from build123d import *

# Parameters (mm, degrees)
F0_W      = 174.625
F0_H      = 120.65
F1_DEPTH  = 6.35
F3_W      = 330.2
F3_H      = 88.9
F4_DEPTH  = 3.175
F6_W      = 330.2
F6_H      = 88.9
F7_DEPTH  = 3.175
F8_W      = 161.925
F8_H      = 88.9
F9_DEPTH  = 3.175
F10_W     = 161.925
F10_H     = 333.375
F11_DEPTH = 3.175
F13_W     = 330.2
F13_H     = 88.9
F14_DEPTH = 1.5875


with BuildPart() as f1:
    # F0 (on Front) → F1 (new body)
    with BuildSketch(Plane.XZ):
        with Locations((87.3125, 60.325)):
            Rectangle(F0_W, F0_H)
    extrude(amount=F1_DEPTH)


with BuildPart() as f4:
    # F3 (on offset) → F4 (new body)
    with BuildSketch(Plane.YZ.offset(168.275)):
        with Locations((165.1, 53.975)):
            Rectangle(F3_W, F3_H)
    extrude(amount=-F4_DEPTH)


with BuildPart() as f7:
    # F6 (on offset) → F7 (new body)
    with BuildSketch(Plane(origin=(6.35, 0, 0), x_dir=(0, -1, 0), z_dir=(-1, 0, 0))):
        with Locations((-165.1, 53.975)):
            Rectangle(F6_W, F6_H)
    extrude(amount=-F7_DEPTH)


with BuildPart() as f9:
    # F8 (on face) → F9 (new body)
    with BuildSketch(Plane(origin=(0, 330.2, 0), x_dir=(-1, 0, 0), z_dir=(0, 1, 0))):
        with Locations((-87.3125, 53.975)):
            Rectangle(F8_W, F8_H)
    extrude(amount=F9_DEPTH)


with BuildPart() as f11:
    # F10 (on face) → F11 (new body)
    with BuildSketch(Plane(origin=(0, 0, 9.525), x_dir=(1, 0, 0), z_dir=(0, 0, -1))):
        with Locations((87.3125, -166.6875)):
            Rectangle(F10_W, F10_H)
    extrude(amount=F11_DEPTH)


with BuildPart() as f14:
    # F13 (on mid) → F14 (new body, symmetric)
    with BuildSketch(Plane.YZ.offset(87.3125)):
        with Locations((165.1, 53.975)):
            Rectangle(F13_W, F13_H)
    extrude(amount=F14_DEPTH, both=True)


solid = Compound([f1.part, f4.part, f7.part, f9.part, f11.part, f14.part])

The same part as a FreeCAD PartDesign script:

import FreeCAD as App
import Part
import Sketcher
Q = App.Units.Quantity

doc = App.newDocument("Part")
body = doc.addObject("PartDesign::Body", "Body")

sketch1 = doc.addObject("Sketcher::SketchObject", "Sketch")
body.addObject(sketch1)
sketch1.AttachmentSupport = (doc.XZ_Plane, [""])
sketch1.MapMode = "FlatFace"
sketch1.addGeometry([
    Part.LineSegment(App.Vector(0, 121, 0), App.Vector(0, 0, 0)),
    Part.LineSegment(App.Vector(0, 0, 0), App.Vector(175, 0, 0)),
    Part.LineSegment(App.Vector(175, 0, 0), App.Vector(175, 121, 0)),
    Part.LineSegment(App.Vector(175, 121, 0), App.Vector(0, 121, 0)),
], False)
sketch1.addConstraint([
    Sketcher.Constraint("Coincident", 0, 2, 1, 1),
    Sketcher.Constraint("Coincident", 1, 2, 2, 1),
    Sketcher.Constraint("Coincident", 2, 2, 3, 1),
    Sketcher.Constraint("Coincident", 3, 2, 0, 1),
    Sketcher.Constraint("Vertical", 0),
    Sketcher.Constraint("Horizontal", 1),
    Sketcher.Constraint("Vertical", 2),
    Sketcher.Constraint("Horizontal", 3),
    Sketcher.Constraint("Coincident", 0, 2, -1, 1),
    Sketcher.Constraint("DistanceY", 0, 2, 0, 1, Q("4.75 in")),
    Sketcher.Constraint("DistanceX", 1, 1, 1, 2, Q("6.875 in")),
])
pad1 = doc.addObject("PartDesign::Pad", "Pad")
body.addObject(pad1)
pad1.Profile = sketch1
pad1.Length = Q("0.25 in")
body2 = doc.addObject("PartDesign::Body", "Body001")

sketch2 = doc.addObject("Sketcher::SketchObject", "Sketch001")
body2.addObject(sketch2)
sketch2.AttachmentSupport = (doc.getObject("YZ_Plane001"), [""])
sketch2.MapMode = "FlatFace"
sketch2.AttachmentOffset = App.Placement(App.Vector(0, 0, 6.625 * 25.4), App.Rotation())
sketch2.addGeometry([
    Part.LineSegment(App.Vector(0, 98, 0), App.Vector(0, 10, 0)),
    Part.LineSegment(App.Vector(0, 10, 0), App.Vector(330, 10, 0)),
    Part.LineSegment(App.Vector(330, 10, 0), App.Vector(330, 98, 0)),
    Part.LineSegment(App.Vector(330, 98, 0), App.Vector(0, 98, 0)),
], False)
sketch2.addConstraint([
    Sketcher.Constraint("Coincident", 0, 2, 1, 1),
    Sketcher.Constraint("Coincident", 1, 2, 2, 1),
    Sketcher.Constraint("Coincident", 2, 2, 3, 1),
    Sketcher.Constraint("Coincident", 3, 2, 0, 1),
    Sketcher.Constraint("Vertical", 0),
    Sketcher.Constraint("Horizontal", 1),
    Sketcher.Constraint("Vertical", 2),
    Sketcher.Constraint("Horizontal", 3),
    Sketcher.Constraint("PointOnObject", 0, 2, -2),
    Sketcher.Constraint("DistanceX", 1, 1, 1, 2, Q("13 in")),
    Sketcher.Constraint("DistanceY", 0, 2, 0, 1, Q("3.5 in")),
    Sketcher.Constraint("DistanceY", -1, 1, 0, 2, Q("0.375 in")),
])
pad2 = doc.addObject("PartDesign::Pad", "Pad001")
body2.addObject(pad2)
pad2.Profile = sketch2
pad2.Length = Q("0.125 in")
pad2.Reversed = True
body3 = doc.addObject("PartDesign::Body", "Body002")

sketch3 = doc.addObject("Sketcher::SketchObject", "Sketch002")
body3.addObject(sketch3)
sketch3.AttachmentSupport = (doc.getObject("YZ_Plane002"), [""])
sketch3.MapMode = "FlatFace"
sketch3.AttachmentOffset = App.Placement(App.Vector(0, 0, 0.25 * 25.4), App.Rotation())
sketch3.addGeometry([
    Part.LineSegment(App.Vector(330, 98, 0), App.Vector(330, 10, 0)),
    Part.LineSegment(App.Vector(330, 10, 0), App.Vector(0, 10, 0)),
    Part.LineSegment(App.Vector(0, 10, 0), App.Vector(0, 98, 0)),
    Part.LineSegment(App.Vector(0, 98, 0), App.Vector(330, 98, 0)),
], False)
sketch3.addConstraint([
    Sketcher.Constraint("Coincident", 0, 2, 1, 1),
    Sketcher.Constraint("Coincident", 1, 2, 2, 1),
    Sketcher.Constraint("Coincident", 2, 2, 3, 1),
    Sketcher.Constraint("Coincident", 3, 2, 0, 1),
    Sketcher.Constraint("Vertical", 0),
    Sketcher.Constraint("Horizontal", 1),
    Sketcher.Constraint("Vertical", 2),
    Sketcher.Constraint("Horizontal", 3),
    Sketcher.Constraint("PointOnObject", 1, 2, -2),
    Sketcher.Constraint("DistanceX", 1, 2, 1, 1, Q("13 in")),
    Sketcher.Constraint("DistanceY", 0, 2, 0, 1, Q("3.5 in")),
    Sketcher.Constraint("DistanceY", -1, 1, 0, 2, Q("0.375 in")),
])
pad3 = doc.addObject("PartDesign::Pad", "Pad002")
body3.addObject(pad3)
pad3.Profile = sketch3
pad3.Length = Q("0.125 in")
body4 = doc.addObject("PartDesign::Body", "Body003")

sketch4 = doc.addObject("Sketcher::SketchObject", "Sketch003")
body4.addObject(sketch4)
sketch4.AttachmentSupport = (doc.getObject("XZ_Plane003"), [""])
sketch4.MapMode = "FlatFace"
sketch4.AttachmentOffset = App.Placement(App.Vector(0, 0, -13 * 25.4), App.Rotation())
sketch4.addGeometry([
    Part.LineSegment(App.Vector(168, 98, 0), App.Vector(168, 10, 0)),
    Part.LineSegment(App.Vector(168, 10, 0), App.Vector(6, 10, 0)),
    Part.LineSegment(App.Vector(6, 10, 0), App.Vector(6, 98, 0)),
    Part.LineSegment(App.Vector(6, 98, 0), App.Vector(168, 98, 0)),
], False)
sketch4.addConstraint([
    Sketcher.Constraint("Coincident", 0, 2, 1, 1),
    Sketcher.Constraint("Coincident", 1, 2, 2, 1),
    Sketcher.Constraint("Coincident", 2, 2, 3, 1),
    Sketcher.Constraint("Coincident", 3, 2, 0, 1),
    Sketcher.Constraint("Vertical", 0),
    Sketcher.Constraint("Horizontal", 1),
    Sketcher.Constraint("Vertical", 2),
    Sketcher.Constraint("Horizontal", 3),
    Sketcher.Constraint("DistanceY", 0, 2, 0, 1, Q("3.5 in")),
    Sketcher.Constraint("DistanceX", 1, 2, 1, 1, Q("6.375 in")),
    Sketcher.Constraint("DistanceX", -1, 1, 1, 2, Q("0.25 in")),
    Sketcher.Constraint("DistanceY", -1, 1, 0, 2, Q("0.375 in")),
])
pad4 = doc.addObject("PartDesign::Pad", "Pad003")
body4.addObject(pad4)
pad4.Profile = sketch4
pad4.Length = Q("0.125 in")
pad4.Reversed = True
body5 = doc.addObject("PartDesign::Body", "Body004")

sketch5 = doc.addObject("Sketcher::SketchObject", "Sketch004")
body5.addObject(sketch5)
sketch5.AttachmentSupport = (doc.getObject("XY_Plane004"), [""])
sketch5.MapMode = "FlatFace"
sketch5.AttachmentOffset = App.Placement(App.Vector(0, 0, 0.375 * 25.4), App.Rotation())
sketch5.addGeometry([
    Part.LineSegment(App.Vector(6, 0, 0), App.Vector(6, 333, 0)),
    Part.LineSegment(App.Vector(6, 333, 0), App.Vector(168, 333, 0)),
    Part.LineSegment(App.Vector(168, 333, 0), App.Vector(168, 0, 0)),
    Part.LineSegment(App.Vector(168, 0, 0), App.Vector(6, 0, 0)),
], False)
sketch5.addConstraint([
    Sketcher.Constraint("Coincident", 0, 2, 1, 1),
    Sketcher.Constraint("Coincident", 1, 2, 2, 1),
    Sketcher.Constraint("Coincident", 2, 2, 3, 1),
    Sketcher.Constraint("Coincident", 3, 2, 0, 1),
    Sketcher.Constraint("Vertical", 0),
    Sketcher.Constraint("Horizontal", 1),
    Sketcher.Constraint("Vertical", 2),
    Sketcher.Constraint("Horizontal", 3),
    Sketcher.Constraint("PointOnObject", 2, 2, -1),
    Sketcher.Constraint("DistanceX", 1, 1, 1, 2, Q("6.375 in")),
    Sketcher.Constraint("DistanceY", 0, 1, 0, 2, Q("13.125 in")),
    Sketcher.Constraint("DistanceX", -1, 1, 0, 2, Q("0.25 in")),
])
pad5 = doc.addObject("PartDesign::Pad", "Pad004")
body5.addObject(pad5)
pad5.Profile = sketch5
pad5.Length = Q("0.125 in")
pad5.Reversed = True
body6 = doc.addObject("PartDesign::Body", "Body005")

sketch6 = doc.addObject("Sketcher::SketchObject", "Sketch005")
body6.addObject(sketch6)
sketch6.AttachmentSupport = (doc.getObject("YZ_Plane005"), [""])
sketch6.MapMode = "FlatFace"
sketch6.AttachmentOffset = App.Placement(App.Vector(0, 0, 3.4375 * 25.4), App.Rotation())
sketch6.addGeometry([
    Part.LineSegment(App.Vector(0, 98, 0), App.Vector(0, 10, 0)),
    Part.LineSegment(App.Vector(0, 10, 0), App.Vector(330, 10, 0)),
    Part.LineSegment(App.Vector(330, 10, 0), App.Vector(330, 98, 0)),
    Part.LineSegment(App.Vector(330, 98, 0), App.Vector(0, 98, 0)),
], False)
sketch6.addConstraint([
    Sketcher.Constraint("Coincident", 0, 2, 1, 1),
    Sketcher.Constraint("Coincident", 1, 2, 2, 1),
    Sketcher.Constraint("Coincident", 2, 2, 3, 1),
    Sketcher.Constraint("Coincident", 3, 2, 0, 1),
    Sketcher.Constraint("Vertical", 0),
    Sketcher.Constraint("Horizontal", 1),
    Sketcher.Constraint("Vertical", 2),
    Sketcher.Constraint("Horizontal", 3),
    Sketcher.Constraint("PointOnObject", 0, 2, -2),
    Sketcher.Constraint("DistanceX", 1, 1, 1, 2, Q("13 in")),
    Sketcher.Constraint("DistanceY", 0, 2, 0, 1, Q("3.5 in")),
    Sketcher.Constraint("DistanceY", -1, 1, 0, 2, Q("0.375 in")),
])
pad6 = doc.addObject("PartDesign::Pad", "Pad005")
body6.addObject(pad6)
pad6.Profile = sketch6
pad6.Length = Q("0.125 in")
pad6.Midplane = True

doc.recompute()
